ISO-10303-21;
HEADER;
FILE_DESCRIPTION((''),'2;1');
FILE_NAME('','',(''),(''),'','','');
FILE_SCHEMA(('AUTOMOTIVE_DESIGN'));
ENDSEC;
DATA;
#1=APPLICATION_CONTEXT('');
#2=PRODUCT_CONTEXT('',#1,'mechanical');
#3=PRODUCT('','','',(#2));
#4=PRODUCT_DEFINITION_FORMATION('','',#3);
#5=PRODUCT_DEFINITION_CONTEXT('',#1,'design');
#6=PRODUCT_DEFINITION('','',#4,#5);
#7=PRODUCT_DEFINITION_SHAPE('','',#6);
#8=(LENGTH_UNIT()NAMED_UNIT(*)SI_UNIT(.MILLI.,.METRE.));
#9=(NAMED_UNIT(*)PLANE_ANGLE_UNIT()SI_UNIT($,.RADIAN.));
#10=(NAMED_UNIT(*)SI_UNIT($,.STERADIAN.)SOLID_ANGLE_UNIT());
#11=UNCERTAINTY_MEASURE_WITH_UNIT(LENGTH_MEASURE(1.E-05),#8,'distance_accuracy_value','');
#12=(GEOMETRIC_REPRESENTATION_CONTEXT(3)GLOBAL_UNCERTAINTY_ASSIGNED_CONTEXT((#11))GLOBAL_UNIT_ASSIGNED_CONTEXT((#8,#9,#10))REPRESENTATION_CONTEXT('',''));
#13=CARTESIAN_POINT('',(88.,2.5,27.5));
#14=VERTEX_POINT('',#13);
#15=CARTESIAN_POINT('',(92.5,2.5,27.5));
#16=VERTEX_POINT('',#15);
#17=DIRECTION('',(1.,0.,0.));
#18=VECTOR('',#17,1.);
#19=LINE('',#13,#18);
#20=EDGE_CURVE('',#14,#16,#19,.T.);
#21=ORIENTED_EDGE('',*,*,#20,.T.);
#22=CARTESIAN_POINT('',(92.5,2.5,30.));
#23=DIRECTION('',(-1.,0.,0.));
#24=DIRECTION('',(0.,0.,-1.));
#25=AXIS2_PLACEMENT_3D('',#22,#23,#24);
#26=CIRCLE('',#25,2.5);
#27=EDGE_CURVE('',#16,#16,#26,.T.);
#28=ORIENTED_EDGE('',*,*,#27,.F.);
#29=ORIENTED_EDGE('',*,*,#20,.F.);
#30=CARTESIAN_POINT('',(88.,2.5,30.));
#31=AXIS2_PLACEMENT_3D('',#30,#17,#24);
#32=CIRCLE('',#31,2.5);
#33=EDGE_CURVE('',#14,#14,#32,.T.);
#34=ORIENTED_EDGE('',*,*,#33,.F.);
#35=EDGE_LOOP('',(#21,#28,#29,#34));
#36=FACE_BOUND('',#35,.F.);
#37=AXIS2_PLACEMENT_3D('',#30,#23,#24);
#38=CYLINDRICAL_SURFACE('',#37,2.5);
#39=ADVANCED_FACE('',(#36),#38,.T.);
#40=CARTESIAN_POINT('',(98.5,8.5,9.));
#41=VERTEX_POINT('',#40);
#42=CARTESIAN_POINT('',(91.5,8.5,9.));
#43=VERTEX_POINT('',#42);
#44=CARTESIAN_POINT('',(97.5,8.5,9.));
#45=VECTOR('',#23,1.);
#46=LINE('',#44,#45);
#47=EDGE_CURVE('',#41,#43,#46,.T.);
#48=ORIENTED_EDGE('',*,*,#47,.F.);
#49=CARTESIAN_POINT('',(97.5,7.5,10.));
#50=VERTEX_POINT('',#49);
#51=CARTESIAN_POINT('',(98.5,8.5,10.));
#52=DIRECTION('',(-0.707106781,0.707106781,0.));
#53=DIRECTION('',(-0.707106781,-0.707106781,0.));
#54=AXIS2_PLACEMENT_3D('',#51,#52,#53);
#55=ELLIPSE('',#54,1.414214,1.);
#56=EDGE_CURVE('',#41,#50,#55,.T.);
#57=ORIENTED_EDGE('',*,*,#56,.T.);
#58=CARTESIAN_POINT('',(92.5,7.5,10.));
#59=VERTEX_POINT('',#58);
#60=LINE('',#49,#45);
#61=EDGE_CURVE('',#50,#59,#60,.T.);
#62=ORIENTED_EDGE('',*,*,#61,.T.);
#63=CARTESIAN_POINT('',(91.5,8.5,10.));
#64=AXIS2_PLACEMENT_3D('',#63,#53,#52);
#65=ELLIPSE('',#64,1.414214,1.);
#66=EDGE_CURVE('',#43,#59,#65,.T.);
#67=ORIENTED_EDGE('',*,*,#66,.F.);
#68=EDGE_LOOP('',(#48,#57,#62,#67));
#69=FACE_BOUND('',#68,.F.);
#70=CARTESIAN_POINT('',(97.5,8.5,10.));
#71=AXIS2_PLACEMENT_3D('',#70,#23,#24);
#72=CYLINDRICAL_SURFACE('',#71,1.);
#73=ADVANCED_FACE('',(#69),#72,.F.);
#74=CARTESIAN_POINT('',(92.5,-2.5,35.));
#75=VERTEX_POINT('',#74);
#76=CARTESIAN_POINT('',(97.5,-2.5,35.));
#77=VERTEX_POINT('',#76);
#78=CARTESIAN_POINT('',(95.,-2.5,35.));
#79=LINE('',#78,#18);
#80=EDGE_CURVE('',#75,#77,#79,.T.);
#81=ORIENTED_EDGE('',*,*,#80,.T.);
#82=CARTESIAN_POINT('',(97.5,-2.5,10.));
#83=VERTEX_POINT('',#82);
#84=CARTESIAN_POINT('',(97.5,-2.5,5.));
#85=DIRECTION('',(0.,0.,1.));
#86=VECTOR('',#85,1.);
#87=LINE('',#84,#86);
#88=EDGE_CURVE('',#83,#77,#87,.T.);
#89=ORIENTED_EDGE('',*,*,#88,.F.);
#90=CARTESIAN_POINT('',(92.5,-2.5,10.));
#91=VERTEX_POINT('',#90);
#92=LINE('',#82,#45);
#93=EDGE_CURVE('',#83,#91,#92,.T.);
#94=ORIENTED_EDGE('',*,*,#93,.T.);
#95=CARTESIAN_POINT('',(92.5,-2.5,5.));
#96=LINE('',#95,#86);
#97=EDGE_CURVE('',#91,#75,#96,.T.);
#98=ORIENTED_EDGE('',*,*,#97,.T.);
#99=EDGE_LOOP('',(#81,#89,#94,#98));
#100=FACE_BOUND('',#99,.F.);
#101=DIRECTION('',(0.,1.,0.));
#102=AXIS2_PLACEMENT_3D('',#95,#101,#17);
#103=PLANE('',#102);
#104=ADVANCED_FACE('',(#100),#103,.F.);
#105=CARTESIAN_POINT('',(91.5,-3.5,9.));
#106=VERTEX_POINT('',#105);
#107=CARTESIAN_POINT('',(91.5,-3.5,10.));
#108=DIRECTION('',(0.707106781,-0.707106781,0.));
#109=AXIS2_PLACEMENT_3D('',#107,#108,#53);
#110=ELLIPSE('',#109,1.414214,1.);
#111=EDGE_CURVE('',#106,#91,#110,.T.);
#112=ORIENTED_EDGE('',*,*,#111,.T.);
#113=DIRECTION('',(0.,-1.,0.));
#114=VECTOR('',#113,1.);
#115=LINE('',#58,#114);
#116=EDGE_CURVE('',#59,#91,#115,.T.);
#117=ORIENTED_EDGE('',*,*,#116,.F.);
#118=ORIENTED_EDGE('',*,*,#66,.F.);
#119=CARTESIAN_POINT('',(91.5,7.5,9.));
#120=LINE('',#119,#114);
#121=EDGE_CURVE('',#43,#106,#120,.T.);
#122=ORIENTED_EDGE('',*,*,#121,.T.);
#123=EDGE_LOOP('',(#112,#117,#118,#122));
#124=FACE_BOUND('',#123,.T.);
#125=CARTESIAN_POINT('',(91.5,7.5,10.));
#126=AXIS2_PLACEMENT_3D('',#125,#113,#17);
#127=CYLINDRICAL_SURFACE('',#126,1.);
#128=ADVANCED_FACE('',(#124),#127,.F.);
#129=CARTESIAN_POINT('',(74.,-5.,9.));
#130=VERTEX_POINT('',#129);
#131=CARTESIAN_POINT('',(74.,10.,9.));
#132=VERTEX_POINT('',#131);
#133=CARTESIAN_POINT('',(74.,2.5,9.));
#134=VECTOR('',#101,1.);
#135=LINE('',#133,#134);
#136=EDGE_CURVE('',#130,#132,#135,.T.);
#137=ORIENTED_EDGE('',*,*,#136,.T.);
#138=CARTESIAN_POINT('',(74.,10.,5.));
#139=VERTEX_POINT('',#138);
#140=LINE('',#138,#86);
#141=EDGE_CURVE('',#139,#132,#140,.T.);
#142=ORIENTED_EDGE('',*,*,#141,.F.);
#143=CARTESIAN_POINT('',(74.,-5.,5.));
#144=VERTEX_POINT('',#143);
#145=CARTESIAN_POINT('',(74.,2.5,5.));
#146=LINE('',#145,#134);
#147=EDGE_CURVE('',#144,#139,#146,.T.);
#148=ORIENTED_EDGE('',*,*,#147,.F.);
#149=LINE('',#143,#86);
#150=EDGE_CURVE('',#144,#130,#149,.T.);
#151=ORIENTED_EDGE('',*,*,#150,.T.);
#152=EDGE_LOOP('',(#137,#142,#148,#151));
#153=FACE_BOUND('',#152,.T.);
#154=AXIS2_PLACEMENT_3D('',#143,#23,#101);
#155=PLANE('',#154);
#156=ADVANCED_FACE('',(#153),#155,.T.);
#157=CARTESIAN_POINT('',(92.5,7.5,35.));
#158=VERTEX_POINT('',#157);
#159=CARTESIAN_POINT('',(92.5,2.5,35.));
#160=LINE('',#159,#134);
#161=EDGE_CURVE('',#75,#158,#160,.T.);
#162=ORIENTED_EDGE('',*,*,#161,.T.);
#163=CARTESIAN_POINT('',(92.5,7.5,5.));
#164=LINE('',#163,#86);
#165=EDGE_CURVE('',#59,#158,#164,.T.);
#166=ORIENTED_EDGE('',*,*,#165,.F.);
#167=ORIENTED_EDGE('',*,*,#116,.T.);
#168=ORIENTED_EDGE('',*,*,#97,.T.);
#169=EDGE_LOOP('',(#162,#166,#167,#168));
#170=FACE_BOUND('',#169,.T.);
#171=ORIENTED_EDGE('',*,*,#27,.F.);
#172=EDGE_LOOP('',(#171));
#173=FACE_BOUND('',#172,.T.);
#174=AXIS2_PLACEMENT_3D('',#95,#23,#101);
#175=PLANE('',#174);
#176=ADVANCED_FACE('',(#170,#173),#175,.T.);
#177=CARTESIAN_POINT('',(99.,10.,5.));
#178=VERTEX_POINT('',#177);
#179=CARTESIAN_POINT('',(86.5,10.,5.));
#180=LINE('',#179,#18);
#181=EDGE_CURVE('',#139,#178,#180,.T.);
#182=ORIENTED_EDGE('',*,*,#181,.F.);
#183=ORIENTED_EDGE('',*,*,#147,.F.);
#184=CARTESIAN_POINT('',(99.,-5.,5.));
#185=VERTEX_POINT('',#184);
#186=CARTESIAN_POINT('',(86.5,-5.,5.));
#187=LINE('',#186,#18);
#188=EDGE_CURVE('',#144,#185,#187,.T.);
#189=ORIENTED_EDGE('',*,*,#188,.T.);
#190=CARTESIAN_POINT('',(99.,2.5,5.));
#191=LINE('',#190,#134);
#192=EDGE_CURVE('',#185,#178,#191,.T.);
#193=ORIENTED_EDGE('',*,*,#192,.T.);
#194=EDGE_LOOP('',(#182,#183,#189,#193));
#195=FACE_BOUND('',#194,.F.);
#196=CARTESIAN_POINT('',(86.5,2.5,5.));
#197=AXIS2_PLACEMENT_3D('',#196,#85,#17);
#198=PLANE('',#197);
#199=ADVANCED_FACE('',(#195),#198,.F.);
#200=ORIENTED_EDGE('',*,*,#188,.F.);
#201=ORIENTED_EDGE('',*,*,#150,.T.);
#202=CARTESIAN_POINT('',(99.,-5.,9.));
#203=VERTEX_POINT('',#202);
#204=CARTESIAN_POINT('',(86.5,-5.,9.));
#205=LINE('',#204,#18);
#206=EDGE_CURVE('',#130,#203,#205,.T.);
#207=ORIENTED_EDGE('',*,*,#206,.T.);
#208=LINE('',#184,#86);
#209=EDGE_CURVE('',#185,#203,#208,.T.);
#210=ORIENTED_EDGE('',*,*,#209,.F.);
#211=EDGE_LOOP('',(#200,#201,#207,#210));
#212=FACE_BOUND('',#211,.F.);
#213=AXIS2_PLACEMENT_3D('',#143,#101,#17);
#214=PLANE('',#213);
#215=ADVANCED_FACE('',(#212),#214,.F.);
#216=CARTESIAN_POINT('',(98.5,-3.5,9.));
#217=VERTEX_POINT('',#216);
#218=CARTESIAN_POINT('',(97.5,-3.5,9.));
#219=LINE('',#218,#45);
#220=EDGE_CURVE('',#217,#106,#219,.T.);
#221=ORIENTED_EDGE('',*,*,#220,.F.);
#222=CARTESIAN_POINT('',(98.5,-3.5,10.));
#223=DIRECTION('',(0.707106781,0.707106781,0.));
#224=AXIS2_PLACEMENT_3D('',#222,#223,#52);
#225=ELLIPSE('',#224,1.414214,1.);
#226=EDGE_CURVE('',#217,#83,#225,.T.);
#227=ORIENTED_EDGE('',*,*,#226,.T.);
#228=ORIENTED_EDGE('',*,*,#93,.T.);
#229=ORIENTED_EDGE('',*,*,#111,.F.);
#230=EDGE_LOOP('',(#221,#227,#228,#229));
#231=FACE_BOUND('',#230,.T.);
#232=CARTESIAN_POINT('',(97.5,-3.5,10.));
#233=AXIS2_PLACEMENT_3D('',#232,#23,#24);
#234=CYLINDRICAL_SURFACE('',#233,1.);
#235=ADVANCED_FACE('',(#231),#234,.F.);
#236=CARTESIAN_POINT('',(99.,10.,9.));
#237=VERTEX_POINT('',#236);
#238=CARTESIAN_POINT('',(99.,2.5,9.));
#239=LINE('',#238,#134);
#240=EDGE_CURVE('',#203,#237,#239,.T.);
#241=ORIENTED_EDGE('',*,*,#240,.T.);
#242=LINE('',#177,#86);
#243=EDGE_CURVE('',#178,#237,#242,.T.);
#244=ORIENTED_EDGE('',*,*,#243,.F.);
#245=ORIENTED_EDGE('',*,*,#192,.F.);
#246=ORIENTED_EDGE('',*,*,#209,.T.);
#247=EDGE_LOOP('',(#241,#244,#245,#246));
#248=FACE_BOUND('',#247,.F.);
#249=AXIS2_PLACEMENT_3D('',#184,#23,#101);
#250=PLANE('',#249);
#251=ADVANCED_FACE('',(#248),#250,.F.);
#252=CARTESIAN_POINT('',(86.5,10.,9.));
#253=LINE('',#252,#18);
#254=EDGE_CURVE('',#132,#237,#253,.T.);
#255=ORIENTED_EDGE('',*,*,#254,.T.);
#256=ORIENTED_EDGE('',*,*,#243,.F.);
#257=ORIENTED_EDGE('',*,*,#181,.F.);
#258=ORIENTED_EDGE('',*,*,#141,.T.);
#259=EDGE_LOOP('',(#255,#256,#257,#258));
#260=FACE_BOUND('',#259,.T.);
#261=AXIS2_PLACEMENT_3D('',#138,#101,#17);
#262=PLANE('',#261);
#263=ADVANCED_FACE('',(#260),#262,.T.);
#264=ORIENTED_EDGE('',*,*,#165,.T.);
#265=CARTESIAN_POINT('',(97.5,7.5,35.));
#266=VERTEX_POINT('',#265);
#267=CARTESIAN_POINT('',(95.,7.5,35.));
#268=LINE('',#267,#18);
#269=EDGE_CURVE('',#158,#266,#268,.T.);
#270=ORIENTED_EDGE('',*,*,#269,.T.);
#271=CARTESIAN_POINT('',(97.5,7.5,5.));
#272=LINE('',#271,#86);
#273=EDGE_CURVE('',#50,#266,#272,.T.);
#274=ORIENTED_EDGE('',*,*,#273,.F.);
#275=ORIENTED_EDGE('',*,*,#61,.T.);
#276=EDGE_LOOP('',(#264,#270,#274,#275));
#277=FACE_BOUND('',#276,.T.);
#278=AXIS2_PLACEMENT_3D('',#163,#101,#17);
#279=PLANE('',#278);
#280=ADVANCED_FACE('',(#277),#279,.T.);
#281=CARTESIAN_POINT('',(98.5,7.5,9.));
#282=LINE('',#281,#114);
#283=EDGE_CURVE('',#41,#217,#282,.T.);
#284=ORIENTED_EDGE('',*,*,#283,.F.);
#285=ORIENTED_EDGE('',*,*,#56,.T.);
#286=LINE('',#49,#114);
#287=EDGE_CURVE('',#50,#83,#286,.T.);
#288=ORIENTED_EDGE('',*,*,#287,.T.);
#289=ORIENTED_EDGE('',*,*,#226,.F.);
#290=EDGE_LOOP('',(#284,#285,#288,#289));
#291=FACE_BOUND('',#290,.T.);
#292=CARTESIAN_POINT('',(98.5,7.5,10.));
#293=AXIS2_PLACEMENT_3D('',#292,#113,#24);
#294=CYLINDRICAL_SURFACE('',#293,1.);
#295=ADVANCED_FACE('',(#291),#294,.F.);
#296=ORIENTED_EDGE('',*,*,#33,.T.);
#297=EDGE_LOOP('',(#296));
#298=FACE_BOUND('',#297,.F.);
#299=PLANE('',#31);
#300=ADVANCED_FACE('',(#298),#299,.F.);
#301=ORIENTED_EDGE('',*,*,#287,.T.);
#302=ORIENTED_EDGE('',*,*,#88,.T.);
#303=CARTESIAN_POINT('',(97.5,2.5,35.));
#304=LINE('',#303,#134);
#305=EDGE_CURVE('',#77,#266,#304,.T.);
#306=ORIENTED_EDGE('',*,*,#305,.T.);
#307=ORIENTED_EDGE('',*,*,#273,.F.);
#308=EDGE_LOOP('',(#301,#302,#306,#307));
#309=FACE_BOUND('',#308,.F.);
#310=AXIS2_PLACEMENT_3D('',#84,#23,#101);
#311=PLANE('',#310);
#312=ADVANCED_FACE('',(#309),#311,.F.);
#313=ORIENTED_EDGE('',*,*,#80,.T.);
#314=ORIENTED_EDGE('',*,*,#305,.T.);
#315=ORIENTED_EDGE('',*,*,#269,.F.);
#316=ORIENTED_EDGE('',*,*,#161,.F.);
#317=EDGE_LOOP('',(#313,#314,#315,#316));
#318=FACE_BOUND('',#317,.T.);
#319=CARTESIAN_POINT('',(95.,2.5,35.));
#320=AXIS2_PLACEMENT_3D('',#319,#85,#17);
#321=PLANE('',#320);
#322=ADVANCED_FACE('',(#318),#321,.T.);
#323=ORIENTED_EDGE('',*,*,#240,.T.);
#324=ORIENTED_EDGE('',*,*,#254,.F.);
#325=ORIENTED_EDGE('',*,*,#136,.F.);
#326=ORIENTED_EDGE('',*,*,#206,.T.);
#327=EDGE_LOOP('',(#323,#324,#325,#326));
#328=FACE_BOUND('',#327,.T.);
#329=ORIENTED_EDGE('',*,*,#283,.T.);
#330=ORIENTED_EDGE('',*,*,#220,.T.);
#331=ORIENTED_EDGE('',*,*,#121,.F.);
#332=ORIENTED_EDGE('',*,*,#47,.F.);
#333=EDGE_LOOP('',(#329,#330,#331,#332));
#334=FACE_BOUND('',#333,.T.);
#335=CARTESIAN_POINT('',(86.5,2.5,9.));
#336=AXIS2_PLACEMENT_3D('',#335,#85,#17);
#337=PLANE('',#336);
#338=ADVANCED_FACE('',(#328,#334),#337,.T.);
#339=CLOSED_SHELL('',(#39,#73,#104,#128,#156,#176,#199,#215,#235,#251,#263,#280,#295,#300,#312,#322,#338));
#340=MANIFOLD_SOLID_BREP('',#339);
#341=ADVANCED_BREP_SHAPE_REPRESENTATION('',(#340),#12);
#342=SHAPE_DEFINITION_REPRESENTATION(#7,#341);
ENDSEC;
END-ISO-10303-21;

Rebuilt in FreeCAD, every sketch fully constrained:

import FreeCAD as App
import Part
import Sketcher
from FreeCAD import Vector


def edges_at(feature, points):
    """Names of the edges that pass closest to the given points."""
    edges = feature.Shape.Edges
    near = lambda p: min(range(len(edges)), key=lambda i: edges[i].distToShape(Part.Vertex(*p))[0])
    return sorted({f"Edge{near(p) + 1}" for p in points})


def add_polygon(sketch, points):
    """Adds a closed chain of lines whose ends are joined by coincident constraints."""
    first, n = sketch.GeometryCount, len(points)
    for a, b in zip(points, points[1:] + points[:1]):
        sketch.addGeometry(Part.LineSegment(App.Vector(*a, 0), App.Vector(*b, 0)), False)
    for i in range(n):
        sketch.addConstraint(Sketcher.Constraint("Coincident", first + i, 2, first + (i + 1) % n, 1))

doc = App.newDocument("Part")
body = doc.addObject("PartDesign::Body", "Body")

sketch1 = body.newObject("Sketcher::SketchObject", "Sketch")
sketch1.AttachmentSupport = (doc.getObject("YZ_Plane"), [""])
sketch1.MapMode = "FlatFace"
sketch1.AttachmentOffset = App.Placement(Vector(0, 0, 92), App.Rotation())
sketch1.addGeometry(Part.Circle(Vector(2.5, 30, 0), Vector(0, 0, 1), 2.5), False)
sketch1.addConstraint([
    Sketcher.Constraint("Diameter", 0, 5.0),
    Sketcher.Constraint("DistanceY", -1, 1, 0, 3, 30.0),
    Sketcher.Constraint("DistanceX", -1, 1, 0, 3, 2.5),
])
pad1 = body.newObject("PartDesign::Pad", "Pad")
pad1.Profile = sketch1
pad1.Length = 5
body2 = doc.addObject("PartDesign::Body", "Body001")

sketch2 = body2.newObject("Sketcher::SketchObject", "Sketch001")
sketch2.AttachmentSupport = (doc.getObject("XY_Plane001"), [""])
sketch2.MapMode = "FlatFace"
sketch2.AttachmentOffset = App.Placement(Vector(0, 0, 5), App.Rotation())
add_polygon(sketch2, [(96, 8), (96, -2), (102, -2), (102, 8)])
sketch2.addConstraint([
    Sketcher.Constraint("Vertical", 0),
    Sketcher.Constraint("Horizontal", 1),
    Sketcher.Constraint("Vertical", 2),
    Sketcher.Constraint("Horizontal", 3),
    Sketcher.Constraint("DistanceX", 1, 1, 1, 2, 5.0),
    Sketcher.Constraint("DistanceY", 0, 2, 0, 1, 10.0),
    Sketcher.Constraint("DistanceX", -1, 1, 0, 2, 96.5),
    Sketcher.Constraint("DistanceY", 0, 2, -1, 1, 2.5),
])
pad2 = body2.newObject("PartDesign::Pad", "Pad001")
pad2.Profile = sketch2
pad2.Length = 30
doc.recompute()

boolean = body2.newObject("PartDesign::Boolean", "Boolean")
boolean.Type = "Fuse"
boolean.addObjects([body])
body3 = doc.addObject("PartDesign::Body", "Body002")

sketch3 = body3.newObject("Sketcher::SketchObject", "Sketch002")
sketch3.AttachmentSupport = (doc.getObject("XY_Plane002"), [""])
sketch3.MapMode = "FlatFace"
sketch3.AttachmentOffset = App.Placement(Vector(0, 0, 5), App.Rotation())
add_polygon(sketch3, [(78, 10), (78, -5), (103, -5), (103, 10)])
sketch3.addConstraint([
    Sketcher.Constraint("Vertical", 0),
    Sketcher.Constraint("Horizontal", 1),
    Sketcher.Constraint("Vertical", 2),
    Sketcher.Constraint("Horizontal", 3),
    Sketcher.Constraint("DistanceX", 1, 1, 1, 2, 25.0),
    Sketcher.Constraint("DistanceY", 0, 2, 0, 1, 15.0),
    Sketcher.Constraint("DistanceX", -1, 1, 0, 2, 78.0),
    Sketcher.Constraint("DistanceY", 0, 2, -1, 1, 5.0),
])
pad3 = body3.newObject("PartDesign::Pad", "Pad002")
pad3.Profile = sketch3
pad3.Length = 4
doc.recompute()

boolean2 = body3.newObject("PartDesign::Boolean", "Boolean001")
boolean2.Type = "Fuse"
boolean2.addObjects([body2])
body4 = doc.addObject("PartDesign::Body", "Body003")
doc.recompute()

body3.Placement = App.Placement(Vector(-4, 0, 0), App.Rotation(Vector(0, 0, 1), 0))
boolean3 = body4.newObject("PartDesign::Boolean", "Boolean002")
boolean3.Type = "Fuse"
boolean3.addObjects([body3])
doc.recompute()

fillet = body4.newObject("PartDesign::Fillet", "Fillet")
fillet.Base = (boolean3, edges_at(boolean3, [
    (95, -2.5, 9),
    (97.5, 2.5, 9),
    (95, 7.5, 9),
    (92.5, 2.5, 9),
]))
fillet.Radius = 1

doc.recompute()
